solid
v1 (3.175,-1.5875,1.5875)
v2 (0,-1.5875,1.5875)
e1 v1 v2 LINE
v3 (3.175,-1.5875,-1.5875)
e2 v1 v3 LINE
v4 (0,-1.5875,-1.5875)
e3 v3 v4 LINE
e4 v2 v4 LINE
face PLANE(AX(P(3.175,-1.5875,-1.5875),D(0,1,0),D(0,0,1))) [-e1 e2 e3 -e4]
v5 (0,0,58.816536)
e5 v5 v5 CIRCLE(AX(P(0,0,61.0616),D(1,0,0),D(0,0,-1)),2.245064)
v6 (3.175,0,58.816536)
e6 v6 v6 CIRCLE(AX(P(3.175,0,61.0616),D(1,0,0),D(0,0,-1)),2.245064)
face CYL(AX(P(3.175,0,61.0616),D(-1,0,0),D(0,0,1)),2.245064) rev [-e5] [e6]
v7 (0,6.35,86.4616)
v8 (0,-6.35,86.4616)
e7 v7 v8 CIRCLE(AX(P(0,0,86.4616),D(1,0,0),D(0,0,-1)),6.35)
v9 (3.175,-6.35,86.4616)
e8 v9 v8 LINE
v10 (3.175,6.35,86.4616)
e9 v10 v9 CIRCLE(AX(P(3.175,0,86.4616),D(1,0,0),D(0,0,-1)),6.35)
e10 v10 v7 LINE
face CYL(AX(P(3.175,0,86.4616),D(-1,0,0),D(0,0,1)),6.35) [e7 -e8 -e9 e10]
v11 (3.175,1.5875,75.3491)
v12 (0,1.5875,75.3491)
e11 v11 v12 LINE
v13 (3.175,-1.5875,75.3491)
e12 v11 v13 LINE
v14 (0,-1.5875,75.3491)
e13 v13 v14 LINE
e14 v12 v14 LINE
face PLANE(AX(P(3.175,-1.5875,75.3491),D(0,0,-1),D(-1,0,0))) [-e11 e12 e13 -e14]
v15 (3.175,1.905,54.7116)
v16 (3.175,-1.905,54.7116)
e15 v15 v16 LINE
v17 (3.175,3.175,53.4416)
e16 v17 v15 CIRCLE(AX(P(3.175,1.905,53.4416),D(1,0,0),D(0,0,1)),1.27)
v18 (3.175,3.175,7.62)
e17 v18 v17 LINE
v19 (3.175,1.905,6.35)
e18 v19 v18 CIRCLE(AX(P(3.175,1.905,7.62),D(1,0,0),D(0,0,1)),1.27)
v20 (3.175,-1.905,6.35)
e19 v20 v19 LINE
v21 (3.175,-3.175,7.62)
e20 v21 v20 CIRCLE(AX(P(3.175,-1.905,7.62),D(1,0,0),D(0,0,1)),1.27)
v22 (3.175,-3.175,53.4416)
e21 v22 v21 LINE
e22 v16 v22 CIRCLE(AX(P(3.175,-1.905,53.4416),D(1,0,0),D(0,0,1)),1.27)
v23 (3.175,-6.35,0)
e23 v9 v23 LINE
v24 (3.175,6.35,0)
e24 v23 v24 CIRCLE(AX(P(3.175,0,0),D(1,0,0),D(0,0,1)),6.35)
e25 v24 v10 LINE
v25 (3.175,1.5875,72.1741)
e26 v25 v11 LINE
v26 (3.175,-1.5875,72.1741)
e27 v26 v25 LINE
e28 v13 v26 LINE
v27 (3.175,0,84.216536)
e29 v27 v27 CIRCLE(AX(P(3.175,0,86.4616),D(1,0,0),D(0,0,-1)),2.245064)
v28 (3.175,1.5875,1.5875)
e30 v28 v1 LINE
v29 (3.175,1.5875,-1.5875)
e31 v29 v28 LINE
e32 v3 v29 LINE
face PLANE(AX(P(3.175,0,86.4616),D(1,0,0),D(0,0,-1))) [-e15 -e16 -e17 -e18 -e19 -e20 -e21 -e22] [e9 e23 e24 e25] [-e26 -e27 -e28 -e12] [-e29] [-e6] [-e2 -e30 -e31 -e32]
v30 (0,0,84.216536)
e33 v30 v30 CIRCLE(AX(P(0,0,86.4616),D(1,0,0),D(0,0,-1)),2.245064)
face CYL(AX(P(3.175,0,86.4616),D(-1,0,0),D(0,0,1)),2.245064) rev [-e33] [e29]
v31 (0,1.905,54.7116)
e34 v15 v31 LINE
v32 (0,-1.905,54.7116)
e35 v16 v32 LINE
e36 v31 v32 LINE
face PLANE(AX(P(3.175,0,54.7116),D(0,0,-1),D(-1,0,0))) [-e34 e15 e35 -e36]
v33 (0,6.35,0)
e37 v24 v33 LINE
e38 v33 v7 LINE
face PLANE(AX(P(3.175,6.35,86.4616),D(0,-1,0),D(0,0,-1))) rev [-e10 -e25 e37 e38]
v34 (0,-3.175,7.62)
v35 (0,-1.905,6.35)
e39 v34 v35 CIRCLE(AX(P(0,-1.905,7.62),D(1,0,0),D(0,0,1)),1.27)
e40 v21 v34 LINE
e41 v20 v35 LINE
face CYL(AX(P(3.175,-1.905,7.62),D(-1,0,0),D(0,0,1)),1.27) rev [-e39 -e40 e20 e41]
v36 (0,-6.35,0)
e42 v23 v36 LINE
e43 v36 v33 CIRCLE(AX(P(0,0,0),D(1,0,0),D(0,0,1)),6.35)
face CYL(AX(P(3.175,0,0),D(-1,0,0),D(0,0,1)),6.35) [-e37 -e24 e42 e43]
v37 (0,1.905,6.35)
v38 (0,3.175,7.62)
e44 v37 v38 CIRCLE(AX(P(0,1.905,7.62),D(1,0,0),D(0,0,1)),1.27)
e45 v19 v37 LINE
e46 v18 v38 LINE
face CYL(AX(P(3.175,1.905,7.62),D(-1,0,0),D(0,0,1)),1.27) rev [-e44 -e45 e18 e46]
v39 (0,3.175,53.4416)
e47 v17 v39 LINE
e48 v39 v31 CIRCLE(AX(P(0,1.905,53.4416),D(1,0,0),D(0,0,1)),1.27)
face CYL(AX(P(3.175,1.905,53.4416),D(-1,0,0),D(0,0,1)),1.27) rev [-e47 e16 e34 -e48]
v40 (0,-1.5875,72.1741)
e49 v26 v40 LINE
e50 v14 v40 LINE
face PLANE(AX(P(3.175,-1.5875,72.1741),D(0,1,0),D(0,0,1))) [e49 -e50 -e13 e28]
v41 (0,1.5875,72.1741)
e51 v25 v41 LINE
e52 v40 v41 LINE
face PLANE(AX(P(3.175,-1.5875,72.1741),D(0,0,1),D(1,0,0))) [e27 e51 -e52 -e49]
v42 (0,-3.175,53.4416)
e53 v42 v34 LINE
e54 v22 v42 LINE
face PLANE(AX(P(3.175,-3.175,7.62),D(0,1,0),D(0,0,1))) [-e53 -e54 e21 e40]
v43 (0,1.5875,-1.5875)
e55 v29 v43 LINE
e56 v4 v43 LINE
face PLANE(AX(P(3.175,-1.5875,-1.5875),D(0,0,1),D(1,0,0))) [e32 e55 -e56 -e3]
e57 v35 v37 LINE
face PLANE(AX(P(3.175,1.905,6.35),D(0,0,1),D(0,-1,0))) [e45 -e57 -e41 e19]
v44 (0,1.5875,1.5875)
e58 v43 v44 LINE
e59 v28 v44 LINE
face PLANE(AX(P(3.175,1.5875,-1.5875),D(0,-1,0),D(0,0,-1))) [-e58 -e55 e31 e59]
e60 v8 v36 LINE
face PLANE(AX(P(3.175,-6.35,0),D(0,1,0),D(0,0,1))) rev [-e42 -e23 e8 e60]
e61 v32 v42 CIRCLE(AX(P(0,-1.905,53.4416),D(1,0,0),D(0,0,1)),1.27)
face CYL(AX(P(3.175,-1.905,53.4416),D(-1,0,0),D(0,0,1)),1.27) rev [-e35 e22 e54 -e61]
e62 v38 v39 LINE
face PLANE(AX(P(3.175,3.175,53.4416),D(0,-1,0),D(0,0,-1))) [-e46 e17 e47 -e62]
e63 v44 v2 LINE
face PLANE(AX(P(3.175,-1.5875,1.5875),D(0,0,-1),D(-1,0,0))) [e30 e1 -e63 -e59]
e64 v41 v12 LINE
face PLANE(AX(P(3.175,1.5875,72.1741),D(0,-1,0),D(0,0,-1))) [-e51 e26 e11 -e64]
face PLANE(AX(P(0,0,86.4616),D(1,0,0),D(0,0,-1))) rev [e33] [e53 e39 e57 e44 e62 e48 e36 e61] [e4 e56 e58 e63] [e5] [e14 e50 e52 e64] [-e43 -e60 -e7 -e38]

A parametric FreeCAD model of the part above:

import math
import FreeCAD as App
import Part
import Sketcher
from FreeCAD import Vector
Q = App.Units.Quantity


def add_polygon(sketch, points):
    """Adds a closed chain of lines whose ends are joined by coincident constraints."""
    first, n = sketch.GeometryCount, len(points)
    for a, b in zip(points, points[1:] + points[:1]):
        sketch.addGeometry(Part.LineSegment(App.Vector(*a, 0), App.Vector(*b, 0)), False)
    for i in range(n):
        sketch.addConstraint(Sketcher.Constraint("Coincident", first + i, 2, first + (i + 1) % n, 1))

doc = App.newDocument("Part")
body = doc.addObject("PartDesign::Body", "Body")

sketch1 = body.newObject("Sketcher::SketchObject", "Sketch")
sketch1.AttachmentSupport = (doc.getObject("YZ_Plane"), [""])
sketch1.MapMode = "FlatFace"
sketch1.addGeometry(Part.LineSegment(Vector(6.3, 0, 0), Vector(6.3, 86.5, 0)), False)
sketch1.addGeometry(Part.ArcOfCircle(Part.Circle(Vector(0, 86.5, 0), Vector(0, 0, 1), 6.3), math.radians(0), math.radians(180)), False)
sketch1.addGeometry(Part.LineSegment(Vector(-6.3, 86.5, 0), Vector(-6.3, 0, 0)), False)
sketch1.addGeometry(Part.ArcOfCircle(Part.Circle(Vector(0, 0, 0), Vector(0, 0, 1), 6.3), math.radians(180), math.radians(360)), False)
add_polygon(sketch1, [(-1.6, 1.6), (1.6, 1.6), (1.6, -1.6), (-1.6, -1.6)])
sketch1.addGeometry(Part.Circle(Vector(0, 61.1, 0), Vector(0, 0, 1), 2.2), False)
add_polygon(sketch1, [(-1.6, 75.3), (1.6, 75.3), (1.6, 72.2), (-1.6, 72.2)])
sketch1.addGeometry(Part.Circle(Vector(0, 86.5, 0), Vector(0, 0, 1), 2.2), False)
sketch1.addGeometry(Part.ArcOfCircle(Part.Circle(Vector(1.9, 53.4, 0), Vector(0, 0, 1), 1.3), math.radians(0), math.radians(90)), False)
sketch1.addGeometry(Part.LineSegment(Vector(3.2, 53.4, 0), Vector(3.2, 7.6, 0)), False)
sketch1.addGeometry(Part.ArcOfCircle(Part.Circle(Vector(1.9, 7.6, 0), Vector(0, 0, 1), 1.3), math.radians(-90), math.radians(0)), False)
sketch1.addGeometry(Part.LineSegment(Vector(1.9, 6.3, 0), Vector(-1.9, 6.3, 0)), False)
sketch1.addGeometry(Part.ArcOfCircle(Part.Circle(Vector(-1.9, 7.6, 0), Vector(0, 0, 1), 1.3), math.radians(180), math.radians(270)), False)
sketch1.addGeometry(Part.LineSegment(Vector(-3.2, 7.6, 0), Vector(-3.2, 53.4, 0)), False)
sketch1.addGeometry(Part.ArcOfCircle(Part.Circle(Vector(-1.9, 53.4, 0), Vector(0, 0, 1), 1.3), math.radians(90), math.radians(180)), False)
sketch1.addGeometry(Part.LineSegment(Vector(-1.9, 54.7, 0), Vector(1.9, 54.7, 0)), False)
sketch1.addConstraint(Sketcher.Constraint("Tangent", 0, 2, 1, 1))
sketch1.addConstraint(Sketcher.Constraint("Tangent", 1, 2, 2, 1))
sketch1.addConstraint(Sketcher.Constraint("Tangent", 2, 2, 3, 1))
sketch1.addConstraint(Sketcher.Constraint("Tangent", 3, 2, 0, 1))
sketch1.addConstraint(Sketcher.Constraint("Tangent", 14, 1, 15, 1))
sketch1.addConstraint(Sketcher.Constraint("Tangent", 15, 2, 16, 2))
sketch1.addConstraint(Sketcher.Constraint("Tangent", 16, 1, 17, 1))
sketch1.addConstraint(Sketcher.Constraint("Tangent", 17, 2, 18, 2))
sketch1.addConstraint(Sketcher.Constraint("Tangent", 18, 1, 19, 1))
sketch1.addConstraint(Sketcher.Constraint("Tangent", 19, 2, 20, 2))
sketch1.addConstraint(Sketcher.Constraint("Tangent", 20, 1, 21, 1))
sketch1.addConstraint(Sketcher.Constraint("Tangent", 21, 2, 14, 2))
sketch1.addConstraint(Sketcher.Constraint("Vertical", 0))
sketch1.addConstraint(Sketcher.Constraint("Vertical", 2))
sketch1.addConstraint(Sketcher.Constraint("Horizontal", 4))
sketch1.addConstraint(Sketcher.Constraint("Vertical", 5))
sketch1.addConstraint(Sketcher.Constraint("Horizontal", 6))
sketch1.addConstraint(Sketcher.Constraint("Vertical", 7))
sketch1.addConstraint(Sketcher.Constraint("Horizontal", 9))
sketch1.addConstraint(Sketcher.Constraint("Vertical", 10))
sketch1.addConstraint(Sketcher.Constraint("Horizontal", 11))
sketch1.addConstraint(Sketcher.Constraint("Vertical", 12))
sketch1.addConstraint(Sketcher.Constraint("Vertical", 15))
sketch1.addConstraint(Sketcher.Constraint("Horizontal", 17))
sketch1.addConstraint(Sketcher.Constraint("Vertical", 19))
sketch1.addConstraint(Sketcher.Constraint("Horizontal", 21))
sketch1.addConstraint(Sketcher.Constraint("Coincident", 3, 3, -1, 1))
sketch1.addConstraint(Sketcher.Constraint("Coincident", 13, 3, 1, 3))
sketch1.addConstraint(Sketcher.Constraint("Equal", 8, 13))
sketch1.addConstraint(Sketcher.Constraint("Equal", 14, 16))
sketch1.addConstraint(Sketcher.Constraint("Equal", 16, 18))
sketch1.addConstraint(Sketcher.Constraint("Equal", 18, 20))
sketch1.addConstraint(Sketcher.Constraint("Symmetric", 4, 2, 6, 2, -1, 1))
sketch1.addConstraint(Sketcher.Constraint("PointOnObject", 8, 3, -2))
sketch1.addConstraint(Sketcher.Constraint("Vertical", 5, 2, 9, 2))
sketch1.addConstraint(Sketcher.Constraint("Vertical", 7, 2, 11, 2))
sketch1.addConstraint(Sketcher.Constraint("Equal", 11, 5))
sketch1.addConstraint(Sketcher.Constraint("Equal", 7, 10))
sketch1.addConstraint(Sketcher.Constraint("Radius", 1, Q("0.25 in")))
sketch1.addConstraint(Sketcher.Constraint("Radius", 14, Q("0.05 in")))
sketch1.addConstraint(Sketcher.Constraint("DistanceY", 8, 3, 1, 3, Q("1 in")))
sketch1.addConstraint(Sketcher.Constraint("DistanceX", 17, 2, 17, 1, Q("0.15 in")))
sketch1.addConstraint(Sketcher.Constraint("DistanceY", -1, 1, 16, 3, Q("0.3 in")))
sketch1.addConstraint(Sketcher.Constraint("DistanceY", 14, 3, 8, 3, Q("0.3 in")))
sketch1.addConstraint(Sketcher.Constraint("DistanceX", 4, 1, 4, 2, Q("0.125 in")))
sketch1.addConstraint(Sketcher.Constraint("DistanceY", 0, 1, 0, 2, Q("3.404 in")))
sketch1.addConstraint(Sketcher.Constraint("Diameter", 8, Q("4.490128 mm")))
sketch1.addConstraint(Sketcher.Constraint("DistanceX", -1, 1, 14, 3, Q("0.075 in")))
sketch1.addConstraint(Sketcher.Constraint("DistanceY", 9, 2, 1, 3, Q("0.4375 in")))
pad1 = body.newObject("PartDesign::Pad", "Pad")
pad1.Profile = sketch1
pad1.Length = Q("0.125 in")

doc.recompute()
